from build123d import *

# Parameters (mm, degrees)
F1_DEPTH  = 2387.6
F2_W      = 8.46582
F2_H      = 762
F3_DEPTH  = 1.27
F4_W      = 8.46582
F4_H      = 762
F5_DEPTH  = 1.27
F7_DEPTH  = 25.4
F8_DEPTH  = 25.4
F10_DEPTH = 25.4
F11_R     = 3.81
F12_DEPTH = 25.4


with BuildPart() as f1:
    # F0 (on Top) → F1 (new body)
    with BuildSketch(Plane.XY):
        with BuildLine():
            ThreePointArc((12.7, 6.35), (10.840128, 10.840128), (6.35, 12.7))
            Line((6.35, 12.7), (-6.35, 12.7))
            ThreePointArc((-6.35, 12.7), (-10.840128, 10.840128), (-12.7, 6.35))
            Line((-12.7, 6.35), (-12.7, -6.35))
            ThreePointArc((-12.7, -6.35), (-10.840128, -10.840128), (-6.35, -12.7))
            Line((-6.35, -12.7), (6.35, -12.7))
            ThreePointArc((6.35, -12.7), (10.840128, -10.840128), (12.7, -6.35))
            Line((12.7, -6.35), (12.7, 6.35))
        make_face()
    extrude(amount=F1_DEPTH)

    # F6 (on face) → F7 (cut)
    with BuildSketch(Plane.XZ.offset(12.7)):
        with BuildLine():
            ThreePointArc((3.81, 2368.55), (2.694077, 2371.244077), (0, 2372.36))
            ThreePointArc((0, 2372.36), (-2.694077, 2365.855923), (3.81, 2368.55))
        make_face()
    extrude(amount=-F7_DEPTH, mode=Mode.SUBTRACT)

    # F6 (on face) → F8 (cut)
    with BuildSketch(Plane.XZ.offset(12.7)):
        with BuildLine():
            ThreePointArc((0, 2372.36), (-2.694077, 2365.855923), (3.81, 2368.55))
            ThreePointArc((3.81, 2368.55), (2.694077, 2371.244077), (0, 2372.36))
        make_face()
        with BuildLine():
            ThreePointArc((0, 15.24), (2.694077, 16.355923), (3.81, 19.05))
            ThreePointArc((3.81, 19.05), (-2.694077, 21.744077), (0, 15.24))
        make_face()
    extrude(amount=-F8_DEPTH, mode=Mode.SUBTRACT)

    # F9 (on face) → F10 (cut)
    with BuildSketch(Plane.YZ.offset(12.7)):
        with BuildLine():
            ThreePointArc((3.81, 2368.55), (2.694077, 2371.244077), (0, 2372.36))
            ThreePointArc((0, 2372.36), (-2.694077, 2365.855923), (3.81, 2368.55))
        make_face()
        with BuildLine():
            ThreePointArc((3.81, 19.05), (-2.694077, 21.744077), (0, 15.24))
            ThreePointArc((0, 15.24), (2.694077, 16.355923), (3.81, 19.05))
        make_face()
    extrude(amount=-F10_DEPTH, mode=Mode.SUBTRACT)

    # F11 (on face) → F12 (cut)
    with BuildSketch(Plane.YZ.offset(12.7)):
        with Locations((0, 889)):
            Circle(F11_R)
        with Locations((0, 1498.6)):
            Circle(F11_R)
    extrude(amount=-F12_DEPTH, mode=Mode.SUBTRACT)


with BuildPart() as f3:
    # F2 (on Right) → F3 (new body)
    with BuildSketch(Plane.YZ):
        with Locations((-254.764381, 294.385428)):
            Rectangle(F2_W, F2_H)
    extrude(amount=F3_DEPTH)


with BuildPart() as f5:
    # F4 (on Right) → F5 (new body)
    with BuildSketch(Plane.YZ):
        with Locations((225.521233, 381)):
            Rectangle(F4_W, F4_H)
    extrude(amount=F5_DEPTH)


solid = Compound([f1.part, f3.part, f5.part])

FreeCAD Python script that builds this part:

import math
import FreeCAD as App
import Part
import Sketcher

V = App.Vector
Q = App.Units.Quantity


def add_polygon(sketch, points):
    """Adds a closed chain of lines whose ends are joined by coincident constraints."""
    first, n = sketch.GeometryCount, len(points)
    for a, b in zip(points, points[1:] + points[:1]):
        sketch.addGeometry(Part.LineSegment(App.Vector(*a, 0), App.Vector(*b, 0)), False)
    for i in range(n):
        sketch.addConstraint(Sketcher.Constraint("Coincident", first + i, 2, first + (i + 1) % n, 1))

doc = App.newDocument("Part")
body = doc.addObject("PartDesign::Body", "Body")

# Sketch on XY plane
sketch1 = doc.addObject("Sketcher::SketchObject", "Sketch")
body.addObject(sketch1)
sketch1.AttachmentSupport = (doc.XY_Plane, [""])
sketch1.MapMode = "FlatFace"
sketch1.addGeometry([
    Part.ArcOfCircle(Part.Circle(V(6, 6, 0), V(0, 0, 1), 6), math.radians(0), math.radians(90)),  # 0
    Part.LineSegment(V(6, 13, 0), V(-6, 13, 0)),  # 1
    Part.ArcOfCircle(Part.Circle(V(-6, 6, 0), V(0, 0, 1), 6), math.radians(90), math.radians(180)),  # 2
    Part.LineSegment(V(-13, 6, 0), V(-13, -6, 0)),  # 3
    Part.ArcOfCircle(Part.Circle(V(-6, -6, 0), V(0, 0, 1), 6), math.radians(-180), math.radians(-90)),  # 4
    Part.LineSegment(V(-6, -13, 0), V(6, -13, 0)),  # 5
    Part.ArcOfCircle(Part.Circle(V(6, -6, 0), V(0, 0, 1), 6), math.radians(-90), math.radians(0)),  # 6
    Part.LineSegment(V(13, -6, 0), V(13, 6, 0)),  # 7
], False)
sketch1.addConstraint([
    Sketcher.Constraint("Tangent", 0, 2, 1, 1),
    Sketcher.Constraint("Tangent", 1, 2, 2, 1),
    Sketcher.Constraint("Tangent", 2, 2, 3, 1),
    Sketcher.Constraint("Tangent", 3, 2, 4, 1),
    Sketcher.Constraint("Tangent", 4, 2, 5, 1),
    Sketcher.Constraint("Tangent", 5, 2, 6, 1),
    Sketcher.Constraint("Tangent", 6, 2, 7, 1),
    Sketcher.Constraint("Tangent", 7, 2, 0, 1),
    Sketcher.Constraint("Horizontal", 1),
    Sketcher.Constraint("Vertical", 3),
    Sketcher.Constraint("Horizontal", 5),
    Sketcher.Constraint("Vertical", 7),
    Sketcher.Constraint("Equal", 0, 2),
    Sketcher.Constraint("Equal", 2, 4),
    Sketcher.Constraint("Equal", 4, 6),
    Sketcher.Constraint("Symmetric", 0, 3, 4, 3, -1, 1),
    Sketcher.Constraint("Equal", 5, 3),
    Sketcher.Constraint("Radius", 0, Q("0.25 in")),
    Sketcher.Constraint("DistanceX", 1, 2, 1, 1, Q("0.5 in")),
])
pad1 = doc.addObject("PartDesign::Pad", "Pad")
body.addObject(pad1)
pad1.Profile = sketch1
pad1.Length = Q("94 in")

# Sketch on XZ plane
sketch2 = doc.addObject("Sketcher::SketchObject", "Sketch001")
body.addObject(sketch2)
sketch2.AttachmentSupport = (doc.XZ_Plane, [""])
sketch2.MapMode = "FlatFace"
sketch2.AttachmentOffset = App.Placement(V(0, 0, 0.5 * 25.4), App.Rotation())
sketch2.addGeometry([
    Part.ArcOfCircle(Part.Circle(V(0, 2368.6, 0), V(0, 0, 1), 3.8), math.radians(0), math.radians(90)),
    Part.ArcOfCircle(Part.Circle(V(0, 2368.5, 0), V(0, 0, 1), 3.8), math.radians(90), math.radians(360)),
], False)
sketch2.addConstraint([
    Sketcher.Constraint("Tangent", 0, 1, 1, 2),
    Sketcher.Constraint("Coincident", 1, 1, 0, 2),
    Sketcher.Constraint("PointOnObject", 0, 3, -2),
    Sketcher.Constraint("PointOnObject", 1, 1, -2),
    Sketcher.Constraint("Horizontal", 1, 3, 0, 1),
    Sketcher.Constraint("Radius", 0, Q("0.15 in")),
    Sketcher.Constraint("DistanceY", -1, 1, 1, 1, Q("93.4 in")),
])
pocket1 = doc.addObject("PartDesign::Pocket", "Pocket")
body.addObject(pocket1)
pocket1.Profile = sketch2
pocket1.Length = Q("1 in")

# Sketch on XZ plane
sketch3 = doc.addObject("Sketcher::SketchObject", "Sketch002")
body.addObject(sketch3)
sketch3.AttachmentSupport = (doc.XZ_Plane, [""])
sketch3.MapMode = "FlatFace"
sketch3.AttachmentOffset = App.Placement(V(0, 0, 0.5 * 25.4), App.Rotation())
sketch3.addGeometry([
    Part.ArcOfCircle(Part.Circle(V(0, 2368.5, 0), V(0, 0, 1), 3.8), math.radians(90), math.radians(360)),
    Part.ArcOfCircle(Part.Circle(V(0, 2368.6, 0), V(0, 0, 1), 3.8), math.radians(0), math.radians(90)),
    Part.ArcOfCircle(Part.Circle(V(0, 19, 0), V(0, 0, 1), 3.8), math.radians(-90), math.radians(0)),
    Part.ArcOfCircle(Part.Circle(V(0, 19.1, 0), V(0, 0, 1), 3.8), math.radians(0), math.radians(270)),
], False)
sketch3.addConstraint([
    Sketcher.Constraint("Tangent", 0, 1, 1, 2),
    Sketcher.Constraint("Coincident", 1, 1, 0, 2),
    Sketcher.Constraint("Tangent", 2, 1, 3, 2),
    Sketcher.Constraint("Coincident", 3, 1, 2, 2),
    Sketcher.Constraint("Equal", 1, 2),
    Sketcher.Constraint("PointOnObject", 0, 3, -2),
    Sketcher.Constraint("PointOnObject", 2, 3, -2),
    Sketcher.Constraint("PointOnObject", 0, 1, -2),
    Sketcher.Constraint("PointOnObject", 2, 1, -2),
    Sketcher.Constraint("Horizontal", 0, 3, 1, 1),
    Sketcher.Constraint("Horizontal", 2, 3, 3, 1),
    Sketcher.Constraint("Radius", 0, Q("0.15 in")),
    Sketcher.Constraint("DistanceY", -1, 1, 0, 1, Q("93.4 in")),
    Sketcher.Constraint("DistanceY", -1, 1, 2, 1, Q("0.6 in")),
])
pocket2 = doc.addObject("PartDesign::Pocket", "Pocket001")
body.addObject(pocket2)
pocket2.Profile = sketch3
pocket2.Length = Q("1 in")

# Sketch on YZ plane
sketch4 = doc.addObject("Sketcher::SketchObject", "Sketch003")
body.addObject(sketch4)
sketch4.AttachmentSupport = (doc.YZ_Plane, [""])
sketch4.MapMode = "FlatFace"
sketch4.AttachmentOffset = App.Placement(V(0, 0, 0.5 * 25.4), App.Rotation())
sketch4.addGeometry([
    Part.ArcOfCircle(Part.Circle(V(0, 2368.6, 0), V(0, 0, 1), 3.8), math.radians(0), math.radians(90)),
    Part.ArcOfCircle(Part.Circle(V(0, 2368.5, 0), V(0, 0, 1), 3.8), math.radians(90), math.radians(360)),
    Part.ArcOfCircle(Part.Circle(V(0, 19.1, 0), V(0, 0, 1), 3.8), math.radians(0), math.radians(270)),
    Part.ArcOfCircle(Part.Circle(V(0, 19, 0), V(0, 0, 1), 3.8), math.radians(-90), math.radians(0)),
], False)
sketch4.addConstraint([
    Sketcher.Constraint("Tangent", 0, 1, 1, 2),
    Sketcher.Constraint("Coincident", 1, 1, 0, 2),
    Sketcher.Constraint("Tangent", 2, 1, 3, 2),
    Sketcher.Constraint("Coincident", 3, 1, 2, 2),
    Sketcher.Constraint("Equal", 1, 2),
    Sketcher.Constraint("PointOnObject", 0, 3, -2),
    Sketcher.Constraint("PointOnObject", 2, 3, -2),
    Sketcher.Constraint("PointOnObject", 1, 1, -2),
    Sketcher.Constraint("PointOnObject", 3, 1, -2),
    Sketcher.Constraint("Horizontal", 1, 3, 0, 1),
    Sketcher.Constraint("Horizontal", 3, 3, 2, 1),
    Sketcher.Constraint("Radius", 0, Q("0.15 in")),
    Sketcher.Constraint("DistanceY", -1, 1, 1, 1, Q("93.4 in")),
    Sketcher.Constraint("DistanceY", -1, 1, 3, 1, Q("0.6 in")),
])
pocket3 = doc.addObject("PartDesign::Pocket", "Pocket002")
body.addObject(pocket3)
pocket3.Profile = sketch4
pocket3.Length = Q("1 in")

# Sketch on YZ plane
sketch5 = doc.addObject("Sketcher::SketchObject", "Sketch004")
body.addObject(sketch5)
sketch5.AttachmentSupport = (doc.YZ_Plane, [""])
sketch5.MapMode = "FlatFace"
sketch5.AttachmentOffset = App.Placement(V(0, 0, 0.5 * 25.4), App.Rotation())
sketch5.addGeometry([
    Part.Circle(V(0, 889, 0), V(0, 0, 1), 3.8),
    Part.Circle(V(0, 1498.6, 0), V(0, 0, 1), 3.8),
], False)
sketch5.addConstraint([
    Sketcher.Constraint("Equal", 0, 1),
    Sketcher.Constraint("PointOnObject", 0, 3, -2),
    Sketcher.Constraint("PointOnObject", 1, 3, -2),
    Sketcher.Constraint("Diameter", 0, Q("0.3 in")),
    Sketcher.Constraint("DistanceY", -1, 1, 0, 3, Q("35 in")),
    Sketcher.Constraint("DistanceY", -1, 1, 1, 3, Q("59 in")),
])
pocket4 = doc.addObject("PartDesign::Pocket", "Pocket003")
body.addObject(pocket4)
pocket4.Profile = sketch5
pocket4.Length = Q("1 in")
body2 = doc.addObject("PartDesign::Body", "Body001")

# Sketch on YZ plane
sketch6 = doc.addObject("Sketcher::SketchObject", "Sketch005")
body2.addObject(sketch6)
sketch6.AttachmentSupport = (doc.getObject("YZ_Plane001"), [""])
sketch6.MapMode = "FlatFace"
add_polygon(sketch6, [(-259, 675), (-259, -87), (-251, -87), (-251, 675)])  # lines 0-3
sketch6.addConstraint([
    Sketcher.Constraint("Vertical", 0),
    Sketcher.Constraint("Horizontal", 1),
    Sketcher.Constraint("Vertical", 2),
    Sketcher.Constraint("Horizontal", 3),
    Sketcher.Constraint("DistanceY", 0, 2, 0, 1, Q("30 in")),
    Sketcher.Constraint("DistanceX", 1, 1, 1, 2, Q("0.3333 in")),
    Sketcher.Constraint("DistanceX", 0, 2, -1, 1, Q("258.997291 mm")),
    Sketcher.Constraint("DistanceY", 0, 2, -1, 1, Q("86.614572 mm")),
])
pad2 = doc.addObject("PartDesign::Pad", "Pad001")
body2.addObject(pad2)
pad2.Profile = sketch6
pad2.Length = Q("0.05 in")
body3 = doc.addObject("PartDesign::Body", "Body002")

# Sketch on YZ plane
sketch7 = doc.addObject("Sketcher::SketchObject", "Sketch006")
body3.addObject(sketch7)
sketch7.AttachmentSupport = (doc.getObject("YZ_Plane002"), [""])
sketch7.MapMode = "FlatFace"
add_polygon(sketch7, [(221, 762), (221, 0), (230, 0), (230, 762)])  # lines 0-3
sketch7.addConstraint([
    Sketcher.Constraint("Vertical", 0),
    Sketcher.Constraint("Horizontal", 1),
    Sketcher.Constraint("Vertical", 2),
    Sketcher.Constraint("Horizontal", 3),
    Sketcher.Constraint("PointOnObject", 0, 2, -1),
    Sketcher.Constraint("DistanceY", 0, 2, 0, 1, Q("30 in")),
    Sketcher.Constraint("DistanceX", 1, 1, 1, 2, Q("0.3333 in")),
    Sketcher.Constraint("DistanceX", -1, 1, 0, 2, Q("221.288323 mm")),
])
pad3 = doc.addObject("PartDesign::Pad", "Pad002")
body3.addObject(pad3)
pad3.Profile = sketch7
pad3.Length = Q("0.05 in")

doc.recompute()
